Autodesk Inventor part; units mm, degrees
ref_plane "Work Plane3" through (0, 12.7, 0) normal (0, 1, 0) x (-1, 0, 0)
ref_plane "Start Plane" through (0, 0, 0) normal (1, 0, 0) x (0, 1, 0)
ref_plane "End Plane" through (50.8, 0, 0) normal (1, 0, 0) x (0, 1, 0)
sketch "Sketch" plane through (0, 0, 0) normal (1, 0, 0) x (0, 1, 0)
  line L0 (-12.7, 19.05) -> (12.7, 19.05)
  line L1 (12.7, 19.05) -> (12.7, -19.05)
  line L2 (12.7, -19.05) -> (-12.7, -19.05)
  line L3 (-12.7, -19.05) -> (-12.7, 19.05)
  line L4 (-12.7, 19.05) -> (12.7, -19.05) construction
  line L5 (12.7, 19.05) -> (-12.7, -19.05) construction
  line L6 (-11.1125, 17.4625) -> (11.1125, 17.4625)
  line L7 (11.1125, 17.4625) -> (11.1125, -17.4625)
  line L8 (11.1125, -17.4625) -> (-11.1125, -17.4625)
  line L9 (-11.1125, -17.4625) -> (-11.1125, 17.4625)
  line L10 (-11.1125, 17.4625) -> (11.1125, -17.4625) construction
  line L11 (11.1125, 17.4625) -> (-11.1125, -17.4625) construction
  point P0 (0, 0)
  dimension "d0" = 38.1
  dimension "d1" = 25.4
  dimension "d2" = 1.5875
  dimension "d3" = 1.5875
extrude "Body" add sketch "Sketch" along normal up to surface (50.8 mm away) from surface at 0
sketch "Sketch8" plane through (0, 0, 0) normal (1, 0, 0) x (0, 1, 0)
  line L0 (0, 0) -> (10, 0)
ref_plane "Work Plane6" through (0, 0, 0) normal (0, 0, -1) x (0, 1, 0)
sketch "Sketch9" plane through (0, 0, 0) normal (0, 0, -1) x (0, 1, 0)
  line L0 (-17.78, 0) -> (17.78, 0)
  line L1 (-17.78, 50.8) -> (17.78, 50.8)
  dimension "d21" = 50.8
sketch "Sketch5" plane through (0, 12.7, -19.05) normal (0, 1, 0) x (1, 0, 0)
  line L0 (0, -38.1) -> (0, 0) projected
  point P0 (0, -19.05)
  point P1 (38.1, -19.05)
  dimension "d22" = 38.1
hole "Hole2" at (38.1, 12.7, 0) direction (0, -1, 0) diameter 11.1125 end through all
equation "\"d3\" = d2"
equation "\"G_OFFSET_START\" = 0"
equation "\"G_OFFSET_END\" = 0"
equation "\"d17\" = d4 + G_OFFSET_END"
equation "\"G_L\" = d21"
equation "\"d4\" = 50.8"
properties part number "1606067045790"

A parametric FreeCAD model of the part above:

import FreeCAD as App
import Part
import Sketcher

V = App.Vector
Q = App.Units.Quantity


def add_polygon(sketch, points):
    """Adds a closed chain of lines whose ends are joined by coincident constraints."""
    first, n = sketch.GeometryCount, len(points)
    for a, b in zip(points, points[1:] + points[:1]):
        sketch.addGeometry(Part.LineSegment(App.Vector(*a, 0), App.Vector(*b, 0)), False)
    for i in range(n):
        sketch.addConstraint(Sketcher.Constraint("Coincident", first + i, 2, first + (i + 1) % n, 1))

doc = App.newDocument("Part")
body = doc.addObject("PartDesign::Body", "Body")

sketch1 = body.newObject("Sketcher::SketchObject", "Sketch")
sketch1.AttachmentSupport = (doc.getObject("YZ_Plane"), [""])
sketch1.MapMode = "FlatFace"
add_polygon(sketch1, [(12.7, 19.05), (-12.7, 19.05), (-12.7, -19.05), (12.7, -19.05)])
add_polygon(sketch1, [(-11.1125, -17.4625), (-11.1125, 17.4625), (11.1125, 17.4625), (11.1125, -17.4625)])
sketch1.addConstraint([
    Sketcher.Constraint("Horizontal", 0),
    Sketcher.Constraint("Vertical", 1),
    Sketcher.Constraint("Horizontal", 2),
    Sketcher.Constraint("Vertical", 3),
    Sketcher.Constraint("Vertical", 4),
    Sketcher.Constraint("Horizontal", 5),
    Sketcher.Constraint("Vertical", 6),
    Sketcher.Constraint("Horizontal", 7),
    Sketcher.Constraint("Symmetric", 0, 2, 2, 2, -1, 1),
    Sketcher.Constraint("Symmetric", 4, 2, 6, 2, -1, 1),
    Sketcher.Constraint("DistanceX", 0, 2, 0, 1, Q("1 in")),
    Sketcher.Constraint("DistanceY", 1, 2, 1, 1, Q("1.5 in")),
    Sketcher.Constraint("DistanceX", 0, 2, 4, 2, Q("0.0625 in")),
    Sketcher.Constraint("DistanceY", 4, 2, 0, 2, Q("0.0625 in")),
])
pad1 = body.newObject("PartDesign::Pad", "Pad")
pad1.Profile = sketch1
pad1.Length = Q("2 in")

sketch2 = body.newObject("Sketcher::SketchObject", "Sketch001")
sketch2.AttachmentSupport = (doc.getObject("XZ_Plane"), [""])
sketch2.MapMode = "FlatFace"
sketch2.AttachmentOffset = App.Placement(V(0, 0, -0.5 * 25.4), App.Rotation())
sketch2.addGeometry(Part.Circle(V(38.1, 0, 0), V(0, 0, 1), 5.55625), False)
sketch2.addConstraint([
    Sketcher.Constraint("PointOnObject", 0, 3, -1),
    Sketcher.Constraint("Diameter", 0, Q("0.4375 in")),
    Sketcher.Constraint("DistanceX", -1, 1, 0, 3, Q("1.5 in")),
])
doc.recompute()
hole = body.newObject("PartDesign::Hole", "Hole")
hole.Profile = sketch2
hole.ThreadType = "None"
hole.Diameter = Q("0.4375 in")
hole.DepthType = "ThroughAll"
hole.Reversed = True

doc.recompute()
